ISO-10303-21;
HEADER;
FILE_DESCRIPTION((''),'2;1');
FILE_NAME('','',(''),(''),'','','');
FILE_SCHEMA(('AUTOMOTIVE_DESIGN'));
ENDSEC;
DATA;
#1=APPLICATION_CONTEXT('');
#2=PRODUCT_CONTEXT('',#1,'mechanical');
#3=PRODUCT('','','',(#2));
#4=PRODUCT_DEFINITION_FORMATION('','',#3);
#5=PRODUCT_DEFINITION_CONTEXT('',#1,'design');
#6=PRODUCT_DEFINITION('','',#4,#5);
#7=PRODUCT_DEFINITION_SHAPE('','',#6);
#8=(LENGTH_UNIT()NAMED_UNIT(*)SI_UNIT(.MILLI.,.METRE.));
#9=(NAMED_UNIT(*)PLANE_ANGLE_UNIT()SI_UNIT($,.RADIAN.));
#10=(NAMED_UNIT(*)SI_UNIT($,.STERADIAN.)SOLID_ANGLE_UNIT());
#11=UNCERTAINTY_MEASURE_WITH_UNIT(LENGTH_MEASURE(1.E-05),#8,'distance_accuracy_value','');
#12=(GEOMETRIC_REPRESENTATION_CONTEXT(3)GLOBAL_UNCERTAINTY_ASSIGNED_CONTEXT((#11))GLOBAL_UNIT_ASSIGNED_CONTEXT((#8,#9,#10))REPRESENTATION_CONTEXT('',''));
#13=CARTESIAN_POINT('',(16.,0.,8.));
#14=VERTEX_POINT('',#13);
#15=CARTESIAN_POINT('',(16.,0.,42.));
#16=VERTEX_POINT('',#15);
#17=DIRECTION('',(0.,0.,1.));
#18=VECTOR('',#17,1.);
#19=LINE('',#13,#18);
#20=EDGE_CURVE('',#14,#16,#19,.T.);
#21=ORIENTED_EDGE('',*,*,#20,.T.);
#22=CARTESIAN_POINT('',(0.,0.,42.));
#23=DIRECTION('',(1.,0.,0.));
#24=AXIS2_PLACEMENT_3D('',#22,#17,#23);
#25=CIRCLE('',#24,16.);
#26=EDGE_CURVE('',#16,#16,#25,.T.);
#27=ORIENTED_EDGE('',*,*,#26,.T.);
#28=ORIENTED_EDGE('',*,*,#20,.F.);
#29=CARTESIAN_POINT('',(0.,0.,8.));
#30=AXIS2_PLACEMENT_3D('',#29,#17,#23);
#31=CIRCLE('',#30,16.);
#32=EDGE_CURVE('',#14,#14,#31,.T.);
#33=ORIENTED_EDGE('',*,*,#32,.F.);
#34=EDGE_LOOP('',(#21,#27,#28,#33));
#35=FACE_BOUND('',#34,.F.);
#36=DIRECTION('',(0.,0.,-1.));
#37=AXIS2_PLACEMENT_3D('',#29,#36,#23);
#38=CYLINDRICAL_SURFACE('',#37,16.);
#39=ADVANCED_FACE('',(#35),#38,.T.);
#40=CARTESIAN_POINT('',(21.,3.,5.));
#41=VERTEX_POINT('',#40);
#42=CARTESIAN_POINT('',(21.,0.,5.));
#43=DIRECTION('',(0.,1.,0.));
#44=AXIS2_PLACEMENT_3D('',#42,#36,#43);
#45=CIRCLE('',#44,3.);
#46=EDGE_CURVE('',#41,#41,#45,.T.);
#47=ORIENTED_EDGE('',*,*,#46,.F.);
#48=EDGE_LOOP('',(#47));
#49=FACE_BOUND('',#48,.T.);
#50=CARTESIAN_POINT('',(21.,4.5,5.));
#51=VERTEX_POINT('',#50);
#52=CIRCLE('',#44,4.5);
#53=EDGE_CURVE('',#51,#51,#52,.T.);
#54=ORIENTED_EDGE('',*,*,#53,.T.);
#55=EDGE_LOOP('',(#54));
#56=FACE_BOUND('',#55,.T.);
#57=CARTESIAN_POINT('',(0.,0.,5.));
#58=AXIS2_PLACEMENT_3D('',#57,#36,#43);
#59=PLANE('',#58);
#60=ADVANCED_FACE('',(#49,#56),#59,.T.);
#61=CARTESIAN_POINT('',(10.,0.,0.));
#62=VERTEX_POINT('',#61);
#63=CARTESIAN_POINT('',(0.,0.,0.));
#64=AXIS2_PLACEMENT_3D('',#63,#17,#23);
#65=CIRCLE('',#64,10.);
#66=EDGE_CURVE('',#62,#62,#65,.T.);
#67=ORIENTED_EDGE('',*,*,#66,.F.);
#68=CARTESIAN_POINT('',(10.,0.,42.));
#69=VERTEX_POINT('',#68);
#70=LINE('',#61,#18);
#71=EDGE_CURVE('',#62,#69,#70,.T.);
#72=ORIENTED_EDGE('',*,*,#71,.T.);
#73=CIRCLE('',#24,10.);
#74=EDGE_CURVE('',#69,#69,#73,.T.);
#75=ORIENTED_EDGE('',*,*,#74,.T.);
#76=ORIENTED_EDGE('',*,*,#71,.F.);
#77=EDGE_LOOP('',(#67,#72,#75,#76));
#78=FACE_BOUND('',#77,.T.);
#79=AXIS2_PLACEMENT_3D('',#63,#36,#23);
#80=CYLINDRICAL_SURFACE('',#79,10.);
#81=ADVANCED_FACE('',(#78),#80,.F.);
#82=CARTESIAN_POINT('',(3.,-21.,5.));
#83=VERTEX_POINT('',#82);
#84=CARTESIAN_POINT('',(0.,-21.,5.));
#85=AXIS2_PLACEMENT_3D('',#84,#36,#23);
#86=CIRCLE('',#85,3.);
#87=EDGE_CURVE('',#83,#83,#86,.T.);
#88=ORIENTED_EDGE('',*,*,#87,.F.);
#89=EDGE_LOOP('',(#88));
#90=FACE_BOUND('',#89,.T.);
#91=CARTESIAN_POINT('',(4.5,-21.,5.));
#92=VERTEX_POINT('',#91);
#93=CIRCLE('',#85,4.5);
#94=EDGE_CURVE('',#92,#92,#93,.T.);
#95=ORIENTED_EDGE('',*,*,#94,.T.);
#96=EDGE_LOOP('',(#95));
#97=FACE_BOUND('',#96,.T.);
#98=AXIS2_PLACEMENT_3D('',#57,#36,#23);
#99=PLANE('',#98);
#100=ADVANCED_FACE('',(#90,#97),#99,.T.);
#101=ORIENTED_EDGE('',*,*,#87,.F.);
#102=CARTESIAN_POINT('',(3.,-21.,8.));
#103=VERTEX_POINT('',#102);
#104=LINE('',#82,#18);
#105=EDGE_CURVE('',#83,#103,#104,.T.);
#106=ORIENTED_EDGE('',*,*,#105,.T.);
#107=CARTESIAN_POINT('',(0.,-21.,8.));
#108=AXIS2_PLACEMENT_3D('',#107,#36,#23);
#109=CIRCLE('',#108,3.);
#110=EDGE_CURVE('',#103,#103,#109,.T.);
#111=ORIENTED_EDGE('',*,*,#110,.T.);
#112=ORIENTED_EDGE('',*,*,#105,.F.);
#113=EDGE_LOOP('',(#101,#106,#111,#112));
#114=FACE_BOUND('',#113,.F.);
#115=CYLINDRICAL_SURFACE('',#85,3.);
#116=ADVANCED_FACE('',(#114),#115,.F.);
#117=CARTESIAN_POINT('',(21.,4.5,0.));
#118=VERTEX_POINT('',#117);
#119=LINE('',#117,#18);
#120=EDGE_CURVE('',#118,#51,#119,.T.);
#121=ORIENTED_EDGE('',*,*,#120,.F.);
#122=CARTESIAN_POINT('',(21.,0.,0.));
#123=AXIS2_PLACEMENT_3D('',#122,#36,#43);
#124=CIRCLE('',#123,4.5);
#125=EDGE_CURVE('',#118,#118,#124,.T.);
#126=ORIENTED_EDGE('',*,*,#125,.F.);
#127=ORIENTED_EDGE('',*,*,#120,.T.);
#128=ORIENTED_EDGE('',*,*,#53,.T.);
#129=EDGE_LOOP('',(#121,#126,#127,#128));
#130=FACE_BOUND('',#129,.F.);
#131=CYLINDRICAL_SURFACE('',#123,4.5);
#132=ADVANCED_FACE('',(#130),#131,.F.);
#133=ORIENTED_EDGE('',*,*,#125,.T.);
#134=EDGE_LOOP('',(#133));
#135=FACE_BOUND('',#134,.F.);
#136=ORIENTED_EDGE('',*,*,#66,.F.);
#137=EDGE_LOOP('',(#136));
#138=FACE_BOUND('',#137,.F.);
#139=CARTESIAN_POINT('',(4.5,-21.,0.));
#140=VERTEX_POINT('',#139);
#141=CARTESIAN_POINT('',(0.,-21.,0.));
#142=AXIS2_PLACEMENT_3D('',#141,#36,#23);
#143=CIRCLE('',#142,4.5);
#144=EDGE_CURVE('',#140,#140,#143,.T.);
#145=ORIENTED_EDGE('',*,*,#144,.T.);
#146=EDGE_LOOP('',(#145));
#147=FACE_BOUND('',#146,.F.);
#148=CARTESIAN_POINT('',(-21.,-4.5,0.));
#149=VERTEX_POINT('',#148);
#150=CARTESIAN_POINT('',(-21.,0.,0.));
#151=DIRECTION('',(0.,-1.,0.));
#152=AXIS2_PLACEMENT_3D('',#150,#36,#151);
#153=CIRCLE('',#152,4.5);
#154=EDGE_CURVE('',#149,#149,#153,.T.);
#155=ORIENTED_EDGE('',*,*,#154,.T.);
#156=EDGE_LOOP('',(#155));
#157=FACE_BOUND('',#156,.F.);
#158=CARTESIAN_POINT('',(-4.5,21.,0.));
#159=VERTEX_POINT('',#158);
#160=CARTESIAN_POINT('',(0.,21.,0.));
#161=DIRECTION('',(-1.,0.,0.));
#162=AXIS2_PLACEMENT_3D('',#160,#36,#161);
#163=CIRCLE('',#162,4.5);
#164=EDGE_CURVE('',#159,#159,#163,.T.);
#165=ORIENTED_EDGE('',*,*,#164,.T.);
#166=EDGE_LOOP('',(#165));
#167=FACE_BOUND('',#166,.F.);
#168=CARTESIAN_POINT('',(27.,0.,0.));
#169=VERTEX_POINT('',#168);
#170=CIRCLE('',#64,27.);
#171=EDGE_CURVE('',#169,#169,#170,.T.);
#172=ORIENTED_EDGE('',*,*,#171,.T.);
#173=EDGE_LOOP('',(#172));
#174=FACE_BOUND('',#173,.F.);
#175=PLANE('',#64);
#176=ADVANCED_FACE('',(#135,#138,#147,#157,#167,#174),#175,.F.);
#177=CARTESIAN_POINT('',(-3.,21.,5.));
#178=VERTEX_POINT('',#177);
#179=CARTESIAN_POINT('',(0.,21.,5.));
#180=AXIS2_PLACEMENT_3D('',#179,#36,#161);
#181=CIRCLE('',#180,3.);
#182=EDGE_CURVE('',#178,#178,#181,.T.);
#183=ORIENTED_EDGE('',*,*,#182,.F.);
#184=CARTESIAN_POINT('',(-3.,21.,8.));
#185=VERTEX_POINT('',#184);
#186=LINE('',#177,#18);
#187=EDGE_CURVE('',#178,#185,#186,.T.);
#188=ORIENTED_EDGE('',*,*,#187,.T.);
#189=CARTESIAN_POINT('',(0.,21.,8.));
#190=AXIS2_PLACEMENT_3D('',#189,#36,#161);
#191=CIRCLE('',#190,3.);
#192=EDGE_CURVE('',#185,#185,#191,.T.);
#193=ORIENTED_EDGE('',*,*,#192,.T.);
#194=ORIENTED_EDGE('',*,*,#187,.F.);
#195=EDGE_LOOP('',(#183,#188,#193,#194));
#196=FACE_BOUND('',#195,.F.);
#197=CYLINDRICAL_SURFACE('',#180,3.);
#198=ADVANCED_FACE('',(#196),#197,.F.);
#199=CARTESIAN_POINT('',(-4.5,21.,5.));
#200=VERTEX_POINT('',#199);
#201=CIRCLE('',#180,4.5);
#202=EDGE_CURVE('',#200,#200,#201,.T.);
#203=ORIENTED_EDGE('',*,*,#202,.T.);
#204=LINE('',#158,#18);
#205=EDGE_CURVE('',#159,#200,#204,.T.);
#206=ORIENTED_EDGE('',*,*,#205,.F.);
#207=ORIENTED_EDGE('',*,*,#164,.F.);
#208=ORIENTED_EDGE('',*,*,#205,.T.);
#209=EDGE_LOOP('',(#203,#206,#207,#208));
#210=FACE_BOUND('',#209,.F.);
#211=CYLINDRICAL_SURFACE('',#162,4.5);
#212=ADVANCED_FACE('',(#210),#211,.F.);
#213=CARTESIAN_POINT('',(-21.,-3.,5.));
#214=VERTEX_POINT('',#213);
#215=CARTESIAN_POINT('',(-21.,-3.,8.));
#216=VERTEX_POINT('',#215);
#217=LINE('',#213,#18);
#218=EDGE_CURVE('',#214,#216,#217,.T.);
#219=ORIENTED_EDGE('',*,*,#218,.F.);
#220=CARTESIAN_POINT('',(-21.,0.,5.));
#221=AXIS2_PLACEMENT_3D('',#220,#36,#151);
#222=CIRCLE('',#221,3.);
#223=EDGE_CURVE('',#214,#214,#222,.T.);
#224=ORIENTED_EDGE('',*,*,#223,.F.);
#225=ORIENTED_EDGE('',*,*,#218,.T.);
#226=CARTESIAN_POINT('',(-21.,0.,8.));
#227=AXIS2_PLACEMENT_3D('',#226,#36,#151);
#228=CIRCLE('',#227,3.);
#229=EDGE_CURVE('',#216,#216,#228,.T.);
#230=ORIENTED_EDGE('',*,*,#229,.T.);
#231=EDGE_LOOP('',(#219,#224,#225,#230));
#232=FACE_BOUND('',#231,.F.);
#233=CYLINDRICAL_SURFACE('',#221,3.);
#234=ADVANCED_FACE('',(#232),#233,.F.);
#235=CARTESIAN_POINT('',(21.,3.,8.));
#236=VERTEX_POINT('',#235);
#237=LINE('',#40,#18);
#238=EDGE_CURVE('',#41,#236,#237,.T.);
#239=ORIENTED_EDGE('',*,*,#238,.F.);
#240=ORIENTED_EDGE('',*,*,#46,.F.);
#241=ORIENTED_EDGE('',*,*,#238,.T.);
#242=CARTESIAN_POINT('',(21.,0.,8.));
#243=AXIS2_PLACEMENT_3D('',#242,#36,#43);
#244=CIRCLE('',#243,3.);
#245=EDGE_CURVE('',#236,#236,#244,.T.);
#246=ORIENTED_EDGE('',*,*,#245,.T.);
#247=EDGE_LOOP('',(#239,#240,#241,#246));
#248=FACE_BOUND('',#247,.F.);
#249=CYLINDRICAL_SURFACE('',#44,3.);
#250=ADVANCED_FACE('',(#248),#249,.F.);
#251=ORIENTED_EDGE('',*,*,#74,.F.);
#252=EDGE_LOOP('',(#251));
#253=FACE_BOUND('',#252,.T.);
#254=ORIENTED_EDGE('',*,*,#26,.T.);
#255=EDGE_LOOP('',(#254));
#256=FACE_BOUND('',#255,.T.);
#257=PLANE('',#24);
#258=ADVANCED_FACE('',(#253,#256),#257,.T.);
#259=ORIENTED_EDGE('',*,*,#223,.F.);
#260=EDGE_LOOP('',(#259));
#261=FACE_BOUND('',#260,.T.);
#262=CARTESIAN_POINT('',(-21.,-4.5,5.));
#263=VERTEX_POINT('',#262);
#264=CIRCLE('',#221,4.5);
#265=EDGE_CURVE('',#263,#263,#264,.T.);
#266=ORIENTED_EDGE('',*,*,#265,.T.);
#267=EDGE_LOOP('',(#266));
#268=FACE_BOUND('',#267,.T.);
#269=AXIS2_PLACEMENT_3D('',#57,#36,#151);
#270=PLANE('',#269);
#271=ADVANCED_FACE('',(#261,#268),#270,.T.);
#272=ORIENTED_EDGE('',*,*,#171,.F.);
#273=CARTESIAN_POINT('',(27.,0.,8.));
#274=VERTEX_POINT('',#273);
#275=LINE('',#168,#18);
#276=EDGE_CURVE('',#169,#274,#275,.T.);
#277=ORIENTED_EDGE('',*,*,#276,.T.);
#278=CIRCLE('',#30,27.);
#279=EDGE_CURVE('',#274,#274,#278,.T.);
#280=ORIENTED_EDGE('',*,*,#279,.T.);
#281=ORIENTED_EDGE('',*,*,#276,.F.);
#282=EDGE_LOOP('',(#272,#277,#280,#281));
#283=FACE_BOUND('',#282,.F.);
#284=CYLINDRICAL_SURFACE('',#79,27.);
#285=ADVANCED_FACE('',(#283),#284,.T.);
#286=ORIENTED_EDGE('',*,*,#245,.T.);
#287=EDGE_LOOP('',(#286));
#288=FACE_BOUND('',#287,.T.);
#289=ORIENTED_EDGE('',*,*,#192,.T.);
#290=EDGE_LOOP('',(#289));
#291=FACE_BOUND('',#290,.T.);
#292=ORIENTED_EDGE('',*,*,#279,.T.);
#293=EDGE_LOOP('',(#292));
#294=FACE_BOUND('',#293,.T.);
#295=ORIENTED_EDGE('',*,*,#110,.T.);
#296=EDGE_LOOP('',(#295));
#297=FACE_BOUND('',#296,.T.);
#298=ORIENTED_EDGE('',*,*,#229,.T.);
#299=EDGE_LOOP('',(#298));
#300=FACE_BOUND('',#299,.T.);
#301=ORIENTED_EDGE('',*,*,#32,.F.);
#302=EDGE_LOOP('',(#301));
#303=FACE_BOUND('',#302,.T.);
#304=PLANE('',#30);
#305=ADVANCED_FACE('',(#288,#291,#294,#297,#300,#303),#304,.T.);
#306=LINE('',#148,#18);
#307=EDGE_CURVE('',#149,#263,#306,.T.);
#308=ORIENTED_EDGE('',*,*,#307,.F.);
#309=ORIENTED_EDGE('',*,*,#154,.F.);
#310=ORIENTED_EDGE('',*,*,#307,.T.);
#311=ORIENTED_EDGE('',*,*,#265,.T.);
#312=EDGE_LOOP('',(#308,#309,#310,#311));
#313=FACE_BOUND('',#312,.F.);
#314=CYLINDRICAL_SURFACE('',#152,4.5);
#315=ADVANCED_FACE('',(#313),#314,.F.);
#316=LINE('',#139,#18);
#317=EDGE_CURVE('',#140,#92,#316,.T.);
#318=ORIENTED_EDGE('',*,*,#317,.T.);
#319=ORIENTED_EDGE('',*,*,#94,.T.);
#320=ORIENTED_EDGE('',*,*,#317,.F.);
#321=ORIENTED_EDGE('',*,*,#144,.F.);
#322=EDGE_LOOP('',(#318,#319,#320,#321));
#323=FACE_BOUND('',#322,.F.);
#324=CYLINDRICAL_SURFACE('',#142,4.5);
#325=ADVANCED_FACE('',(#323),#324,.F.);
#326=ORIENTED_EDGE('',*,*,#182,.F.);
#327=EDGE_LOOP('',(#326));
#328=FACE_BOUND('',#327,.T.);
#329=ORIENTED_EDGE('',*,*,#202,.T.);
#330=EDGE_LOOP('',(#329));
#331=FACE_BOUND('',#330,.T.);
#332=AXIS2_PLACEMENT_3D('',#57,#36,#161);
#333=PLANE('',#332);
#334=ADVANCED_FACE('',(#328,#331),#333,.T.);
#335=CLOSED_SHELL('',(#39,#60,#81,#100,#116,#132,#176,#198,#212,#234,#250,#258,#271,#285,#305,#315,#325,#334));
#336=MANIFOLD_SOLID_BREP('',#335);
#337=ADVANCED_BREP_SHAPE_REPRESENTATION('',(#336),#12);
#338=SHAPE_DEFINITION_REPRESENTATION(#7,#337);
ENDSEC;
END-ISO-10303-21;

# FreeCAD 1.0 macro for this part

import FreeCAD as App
import Part
import Sketcher
from FreeCAD import Vector
Q = App.Units.Quantity

doc = App.newDocument("Part")
body = doc.addObject("PartDesign::Body", "Body")

sketch1 = body.newObject("Sketcher::SketchObject", "Sketch")
sketch1.AttachmentSupport = (doc.getObject("XY_Plane"), [""])
sketch1.MapMode = "FlatFace"
sketch1.addGeometry([
    Part.Circle(Vector(0, 0, 0), Vector(0, 0, 1), 27),
    Part.Circle(Vector(0, 0, 0), Vector(0, 0, 1), 10),
], False)
sketch1.addConstraint([
    Sketcher.Constraint("Coincident", 0, 3, -1, 1),
    Sketcher.Constraint("Coincident", 1, 3, -1, 1),
    Sketcher.Constraint("Diameter", 0, Q("54 mm")),
    Sketcher.Constraint("Diameter", 1, Q("20 mm")),
])
pad1 = body.newObject("PartDesign::Pad", "Pad")
pad1.Profile = sketch1
pad1.Length = 8

sketch2 = body.newObject("Sketcher::SketchObject", "Sketch001")
sketch2.AttachmentSupport = (doc.getObject("XY_Plane"), [""])
sketch2.MapMode = "FlatFace"
sketch2.AttachmentOffset = App.Placement(Vector(0, 0, 8), App.Rotation())
sketch2.addGeometry([
    Part.Circle(Vector(0, 0, 0), Vector(0, 0, 1), 16),
    Part.Circle(Vector(0, 0, 0), Vector(0, 0, 1), 10),
], False)
sketch2.addConstraint([
    Sketcher.Constraint("Coincident", 0, 3, -1, 1),
    Sketcher.Constraint("Coincident", 1, 3, -1, 1),
    Sketcher.Constraint("Diameter", 0, Q("32 mm")),
    Sketcher.Constraint("Diameter", 1, Q("20 mm")),
])
pad2 = body.newObject("PartDesign::Pad", "Pad001")
pad2.Profile = sketch2
pad2.Length = 34

sketch3 = body.newObject("Sketcher::SketchObject", "Sketch002")
sketch3.AttachmentSupport = (doc.getObject("XY_Plane"), [""])
sketch3.MapMode = "FlatFace"
sketch3.addGeometry(Part.Circle(Vector(0, 21, 0), Vector(0, 0, 1), 4.5), False)
sketch3.addConstraint([
    Sketcher.Constraint("PointOnObject", 0, 3, -2),
    Sketcher.Constraint("Diameter", 0, Q("9 mm")),
    Sketcher.Constraint("DistanceY", -1, 1, 0, 3, Q("21 mm")),
])
pocket1 = body.newObject("PartDesign::Pocket", "Pocket")
pocket1.Profile = sketch3
pocket1.Length = 5
pocket1.Reversed = True

sketch4 = body.newObject("Sketcher::SketchObject", "Sketch003")
sketch4.AttachmentSupport = (doc.getObject("XY_Plane"), [""])
sketch4.MapMode = "FlatFace"
sketch4.AttachmentOffset = App.Placement(Vector(0, 0, 5), App.Rotation())
sketch4.addGeometry(Part.Circle(Vector(0, 21, 0), Vector(0, 0, 1), 3), False)
sketch4.addConstraint([
    Sketcher.Constraint("PointOnObject", 0, 3, -2),
    Sketcher.Constraint("Diameter", 0, Q("6 mm")),
    Sketcher.Constraint("DistanceY", -1, 1, 0, 3, Q("21 mm")),
])
pocket2 = body.newObject("PartDesign::Pocket", "Pocket001")
pocket2.Profile = sketch4
pocket2.Type = "ThroughAll"
pocket2.Reversed = True
doc.recompute()

polarpattern = body.newObject("PartDesign::PolarPattern", "PolarPattern")
polarpattern.Originals = [pocket2, pocket1]
polarpattern.Axis = (doc.getObject("Z_Axis"), [""])
polarpattern.Angle = 360
polarpattern.Occurrences = 4
body.Tip = polarpattern

doc.recompute()
